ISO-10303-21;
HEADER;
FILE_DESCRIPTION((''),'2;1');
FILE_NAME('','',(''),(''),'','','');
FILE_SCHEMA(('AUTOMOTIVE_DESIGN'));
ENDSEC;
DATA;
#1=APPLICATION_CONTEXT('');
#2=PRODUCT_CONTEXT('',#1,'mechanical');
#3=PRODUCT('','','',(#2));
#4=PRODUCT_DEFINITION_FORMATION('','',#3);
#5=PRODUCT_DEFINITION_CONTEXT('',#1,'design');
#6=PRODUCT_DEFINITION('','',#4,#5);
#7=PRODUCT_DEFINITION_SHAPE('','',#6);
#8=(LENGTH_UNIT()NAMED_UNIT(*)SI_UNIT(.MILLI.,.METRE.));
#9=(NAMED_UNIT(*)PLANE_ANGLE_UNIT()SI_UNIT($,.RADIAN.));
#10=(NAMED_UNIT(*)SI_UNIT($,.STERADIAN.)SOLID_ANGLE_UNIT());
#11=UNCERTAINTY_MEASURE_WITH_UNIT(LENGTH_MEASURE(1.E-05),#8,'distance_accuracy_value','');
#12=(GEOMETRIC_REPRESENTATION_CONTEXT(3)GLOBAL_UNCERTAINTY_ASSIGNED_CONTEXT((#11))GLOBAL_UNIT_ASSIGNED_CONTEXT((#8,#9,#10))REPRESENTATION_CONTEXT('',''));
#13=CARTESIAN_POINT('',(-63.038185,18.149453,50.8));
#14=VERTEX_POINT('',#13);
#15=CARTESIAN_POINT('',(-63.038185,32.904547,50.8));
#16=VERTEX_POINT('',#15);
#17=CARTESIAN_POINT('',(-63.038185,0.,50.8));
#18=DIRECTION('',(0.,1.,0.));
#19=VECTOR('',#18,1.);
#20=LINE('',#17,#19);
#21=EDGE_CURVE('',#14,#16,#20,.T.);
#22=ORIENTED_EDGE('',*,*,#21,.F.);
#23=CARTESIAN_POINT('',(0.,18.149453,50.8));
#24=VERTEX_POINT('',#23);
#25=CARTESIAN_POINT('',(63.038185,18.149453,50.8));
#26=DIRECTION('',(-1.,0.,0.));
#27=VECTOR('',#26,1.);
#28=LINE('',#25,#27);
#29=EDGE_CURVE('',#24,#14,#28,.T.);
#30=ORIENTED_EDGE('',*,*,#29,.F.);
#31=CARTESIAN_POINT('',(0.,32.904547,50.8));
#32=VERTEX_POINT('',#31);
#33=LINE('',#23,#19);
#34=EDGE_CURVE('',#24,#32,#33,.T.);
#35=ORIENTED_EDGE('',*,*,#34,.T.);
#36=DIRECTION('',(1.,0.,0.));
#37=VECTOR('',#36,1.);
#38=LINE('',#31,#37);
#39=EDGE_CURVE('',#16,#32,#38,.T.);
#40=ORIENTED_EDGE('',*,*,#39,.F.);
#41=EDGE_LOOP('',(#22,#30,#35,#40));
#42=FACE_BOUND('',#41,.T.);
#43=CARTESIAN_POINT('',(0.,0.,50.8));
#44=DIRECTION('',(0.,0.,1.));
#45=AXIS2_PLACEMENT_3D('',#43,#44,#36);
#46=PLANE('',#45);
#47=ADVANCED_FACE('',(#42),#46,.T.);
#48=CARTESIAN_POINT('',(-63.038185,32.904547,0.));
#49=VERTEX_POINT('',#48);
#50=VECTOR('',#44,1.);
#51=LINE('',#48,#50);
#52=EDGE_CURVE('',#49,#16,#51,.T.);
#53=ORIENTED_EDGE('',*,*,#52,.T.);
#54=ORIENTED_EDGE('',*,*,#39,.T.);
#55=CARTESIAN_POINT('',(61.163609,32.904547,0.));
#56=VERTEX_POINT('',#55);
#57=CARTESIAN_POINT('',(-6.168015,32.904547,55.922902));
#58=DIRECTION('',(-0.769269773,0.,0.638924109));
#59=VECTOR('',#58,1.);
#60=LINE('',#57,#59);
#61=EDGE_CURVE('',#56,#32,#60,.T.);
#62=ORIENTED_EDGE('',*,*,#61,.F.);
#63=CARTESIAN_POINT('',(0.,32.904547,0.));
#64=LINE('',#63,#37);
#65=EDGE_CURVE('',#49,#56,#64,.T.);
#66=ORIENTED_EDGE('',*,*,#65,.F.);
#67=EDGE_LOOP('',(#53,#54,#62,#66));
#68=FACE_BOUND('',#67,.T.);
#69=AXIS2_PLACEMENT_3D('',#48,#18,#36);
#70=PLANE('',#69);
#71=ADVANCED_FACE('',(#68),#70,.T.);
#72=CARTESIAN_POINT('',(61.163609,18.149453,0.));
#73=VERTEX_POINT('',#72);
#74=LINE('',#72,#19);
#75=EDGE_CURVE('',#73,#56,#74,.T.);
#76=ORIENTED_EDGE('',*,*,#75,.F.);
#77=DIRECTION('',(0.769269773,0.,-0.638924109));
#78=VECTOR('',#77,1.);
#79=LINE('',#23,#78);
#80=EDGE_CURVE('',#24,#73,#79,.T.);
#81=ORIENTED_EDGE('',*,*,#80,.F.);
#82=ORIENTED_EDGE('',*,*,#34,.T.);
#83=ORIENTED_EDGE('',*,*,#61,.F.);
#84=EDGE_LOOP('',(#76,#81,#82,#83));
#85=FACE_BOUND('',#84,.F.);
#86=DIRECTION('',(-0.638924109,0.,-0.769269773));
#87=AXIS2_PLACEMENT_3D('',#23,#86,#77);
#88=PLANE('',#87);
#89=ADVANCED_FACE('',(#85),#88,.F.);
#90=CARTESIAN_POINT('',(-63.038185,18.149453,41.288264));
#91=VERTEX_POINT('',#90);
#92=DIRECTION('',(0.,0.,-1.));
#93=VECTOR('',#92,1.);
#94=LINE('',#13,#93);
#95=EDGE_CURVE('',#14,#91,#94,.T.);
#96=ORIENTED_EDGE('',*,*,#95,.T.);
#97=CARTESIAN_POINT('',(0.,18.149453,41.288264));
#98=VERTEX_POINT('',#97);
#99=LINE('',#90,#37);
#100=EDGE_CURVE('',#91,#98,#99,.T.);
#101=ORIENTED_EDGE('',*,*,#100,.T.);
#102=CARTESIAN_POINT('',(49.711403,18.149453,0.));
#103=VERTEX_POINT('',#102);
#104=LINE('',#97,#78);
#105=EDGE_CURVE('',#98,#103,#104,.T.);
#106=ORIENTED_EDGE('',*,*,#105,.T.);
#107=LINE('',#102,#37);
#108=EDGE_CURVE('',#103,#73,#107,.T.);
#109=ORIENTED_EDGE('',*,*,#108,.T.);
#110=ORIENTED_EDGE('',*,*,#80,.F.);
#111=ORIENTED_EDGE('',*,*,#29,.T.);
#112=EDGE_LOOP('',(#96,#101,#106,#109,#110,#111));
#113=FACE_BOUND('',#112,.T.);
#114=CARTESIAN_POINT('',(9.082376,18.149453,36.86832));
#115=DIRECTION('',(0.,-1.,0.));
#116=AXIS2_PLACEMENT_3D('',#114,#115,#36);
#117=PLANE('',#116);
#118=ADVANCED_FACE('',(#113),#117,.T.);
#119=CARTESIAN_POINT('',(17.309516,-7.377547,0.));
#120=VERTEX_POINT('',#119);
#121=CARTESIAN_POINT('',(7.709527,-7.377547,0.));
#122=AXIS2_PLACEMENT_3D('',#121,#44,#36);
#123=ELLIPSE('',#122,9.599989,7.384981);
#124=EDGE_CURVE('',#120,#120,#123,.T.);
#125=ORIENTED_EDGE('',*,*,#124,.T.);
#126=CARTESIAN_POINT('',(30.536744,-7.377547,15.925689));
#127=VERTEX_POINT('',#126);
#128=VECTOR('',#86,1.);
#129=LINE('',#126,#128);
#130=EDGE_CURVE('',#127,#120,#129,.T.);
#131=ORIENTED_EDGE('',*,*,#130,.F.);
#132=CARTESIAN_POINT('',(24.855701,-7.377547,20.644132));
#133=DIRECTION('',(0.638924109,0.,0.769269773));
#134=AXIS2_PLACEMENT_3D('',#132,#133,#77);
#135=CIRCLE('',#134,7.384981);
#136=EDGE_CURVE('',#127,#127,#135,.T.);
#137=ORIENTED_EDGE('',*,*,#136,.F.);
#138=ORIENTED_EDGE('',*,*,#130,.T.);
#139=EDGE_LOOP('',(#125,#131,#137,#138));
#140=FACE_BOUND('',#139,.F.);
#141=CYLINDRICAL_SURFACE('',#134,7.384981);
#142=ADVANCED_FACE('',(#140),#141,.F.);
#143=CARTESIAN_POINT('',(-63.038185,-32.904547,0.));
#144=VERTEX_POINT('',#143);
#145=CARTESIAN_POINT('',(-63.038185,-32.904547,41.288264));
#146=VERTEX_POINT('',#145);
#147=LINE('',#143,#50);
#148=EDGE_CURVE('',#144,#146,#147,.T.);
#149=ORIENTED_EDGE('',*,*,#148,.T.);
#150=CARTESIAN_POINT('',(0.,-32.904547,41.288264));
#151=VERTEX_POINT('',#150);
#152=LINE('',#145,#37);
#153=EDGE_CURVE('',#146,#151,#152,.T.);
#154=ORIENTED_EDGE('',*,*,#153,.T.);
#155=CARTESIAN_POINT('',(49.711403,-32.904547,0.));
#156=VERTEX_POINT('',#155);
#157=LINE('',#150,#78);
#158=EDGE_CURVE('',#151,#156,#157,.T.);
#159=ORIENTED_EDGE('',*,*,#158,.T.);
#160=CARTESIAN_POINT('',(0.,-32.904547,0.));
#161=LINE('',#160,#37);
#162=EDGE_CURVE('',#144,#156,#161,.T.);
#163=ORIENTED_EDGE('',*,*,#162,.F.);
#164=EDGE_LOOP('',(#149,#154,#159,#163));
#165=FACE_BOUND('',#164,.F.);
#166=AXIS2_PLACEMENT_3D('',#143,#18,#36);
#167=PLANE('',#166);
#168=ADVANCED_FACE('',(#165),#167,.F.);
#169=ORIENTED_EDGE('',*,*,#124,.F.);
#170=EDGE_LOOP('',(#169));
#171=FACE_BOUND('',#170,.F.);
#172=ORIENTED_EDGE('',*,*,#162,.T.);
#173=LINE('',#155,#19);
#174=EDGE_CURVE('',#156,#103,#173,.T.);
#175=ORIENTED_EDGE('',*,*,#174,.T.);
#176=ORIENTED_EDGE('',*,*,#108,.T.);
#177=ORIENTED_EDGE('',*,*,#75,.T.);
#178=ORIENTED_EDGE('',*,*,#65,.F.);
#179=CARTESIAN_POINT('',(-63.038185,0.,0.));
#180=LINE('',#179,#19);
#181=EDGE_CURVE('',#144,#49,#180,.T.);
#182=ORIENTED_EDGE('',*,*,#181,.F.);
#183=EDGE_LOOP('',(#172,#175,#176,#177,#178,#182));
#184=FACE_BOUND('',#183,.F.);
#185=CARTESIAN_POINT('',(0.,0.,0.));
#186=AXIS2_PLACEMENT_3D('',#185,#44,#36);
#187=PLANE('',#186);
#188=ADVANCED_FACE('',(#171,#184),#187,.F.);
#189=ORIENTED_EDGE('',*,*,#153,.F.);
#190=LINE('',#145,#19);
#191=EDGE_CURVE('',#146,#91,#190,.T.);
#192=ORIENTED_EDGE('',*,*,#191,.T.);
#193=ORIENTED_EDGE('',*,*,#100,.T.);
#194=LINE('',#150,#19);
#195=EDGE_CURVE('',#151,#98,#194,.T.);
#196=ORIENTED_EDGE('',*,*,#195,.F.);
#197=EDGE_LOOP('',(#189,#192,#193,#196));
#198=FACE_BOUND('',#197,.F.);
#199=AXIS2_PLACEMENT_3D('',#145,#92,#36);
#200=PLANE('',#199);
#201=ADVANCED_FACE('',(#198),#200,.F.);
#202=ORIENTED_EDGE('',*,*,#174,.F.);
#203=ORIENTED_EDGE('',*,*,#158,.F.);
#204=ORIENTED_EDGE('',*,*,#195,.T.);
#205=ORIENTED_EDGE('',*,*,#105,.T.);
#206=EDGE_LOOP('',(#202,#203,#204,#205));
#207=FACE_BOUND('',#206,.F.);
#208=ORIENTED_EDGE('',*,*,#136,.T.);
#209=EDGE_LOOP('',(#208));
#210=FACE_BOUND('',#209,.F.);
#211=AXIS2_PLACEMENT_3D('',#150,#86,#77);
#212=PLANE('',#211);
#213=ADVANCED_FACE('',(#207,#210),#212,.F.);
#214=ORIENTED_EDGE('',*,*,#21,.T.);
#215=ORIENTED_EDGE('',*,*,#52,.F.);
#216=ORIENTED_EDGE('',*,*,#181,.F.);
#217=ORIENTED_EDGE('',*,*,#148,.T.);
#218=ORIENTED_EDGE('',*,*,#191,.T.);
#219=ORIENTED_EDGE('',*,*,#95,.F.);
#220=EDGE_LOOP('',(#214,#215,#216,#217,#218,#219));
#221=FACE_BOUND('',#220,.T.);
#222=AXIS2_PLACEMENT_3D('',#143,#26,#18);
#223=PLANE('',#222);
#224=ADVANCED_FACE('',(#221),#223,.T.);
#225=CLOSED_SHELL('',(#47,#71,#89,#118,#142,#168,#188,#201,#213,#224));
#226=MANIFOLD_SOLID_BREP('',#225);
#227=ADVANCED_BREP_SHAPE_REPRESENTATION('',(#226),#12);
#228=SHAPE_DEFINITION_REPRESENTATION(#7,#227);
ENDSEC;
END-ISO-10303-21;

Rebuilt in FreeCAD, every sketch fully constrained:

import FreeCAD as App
import Part
import Sketcher
from FreeCAD import Vector
Q = App.Units.Quantity


def add_polygon(sketch, points):
    """Adds a closed chain of lines whose ends are joined by coincident constraints."""
    first, n = sketch.GeometryCount, len(points)
    for a, b in zip(points, points[1:] + points[:1]):
        sketch.addGeometry(Part.LineSegment(App.Vector(*a, 0), App.Vector(*b, 0)), False)
    for i in range(n):
        sketch.addConstraint(Sketcher.Constraint("Coincident", first + i, 2, first + (i + 1) % n, 1))

doc = App.newDocument("Part")
body = doc.addObject("PartDesign::Body", "Body")

sketch1 = body.newObject("Sketcher::SketchObject", "Sketch")
sketch1.AttachmentSupport = (doc.getObject("XY_Plane"), [""])
sketch1.MapMode = "FlatFace"
add_polygon(sketch1, [(-63, 33), (-63, -33), (63, -33), (63, 33)])
sketch1.addConstraint([
    Sketcher.Constraint("Vertical", 0),
    Sketcher.Constraint("Horizontal", 1),
    Sketcher.Constraint("Vertical", 2),
    Sketcher.Constraint("Horizontal", 3),
    Sketcher.Constraint("Symmetric", 0, 2, 2, 2, -1, 1),
    Sketcher.Constraint("DistanceX", 1, 1, 1, 2, Q("126.07637 mm")),
    Sketcher.Constraint("DistanceY", 0, 2, 0, 1, Q("65.809093 mm")),
])
pad1 = body.newObject("PartDesign::Pad", "Pad")
pad1.Profile = sketch1
pad1.Length = Q("2 in")

sketch2 = body.newObject("Sketcher::SketchObject", "Sketch001")
sketch2.AttachmentSupport = (doc.getObject("XZ_Plane"), [""])
sketch2.MapMode = "FlatFace"
sketch2.AttachmentOffset = App.Placement(Vector(0, 0, 32.904547), App.Rotation())
add_polygon(sketch2, [(63, 51), (-63, 51), (-63, 41), (0, 41), (50, 0), (63, 0)])
sketch2.addConstraint([
    Sketcher.Constraint("Horizontal", 0),
    Sketcher.Constraint("Vertical", 1),
    Sketcher.Constraint("Horizontal", 2),
    Sketcher.Constraint("Horizontal", 4),
    Sketcher.Constraint("Vertical", 5),
    Sketcher.Constraint("PointOnObject", 2, 2, -2),
    Sketcher.Constraint("PointOnObject", 3, 2, -1),
    Sketcher.Constraint("DistanceY", 5, 1, 5, 2, Q("2 in")),
    Sketcher.Constraint("DistanceX", 0, 2, 0, 1, Q("126.07637 mm")),
    Sketcher.Constraint("DistanceX", 2, 1, 2, 2, Q("63.038185 mm")),
    Sketcher.Constraint("DistanceX", 4, 1, 4, 2, Q("13.326783 mm")),
    Sketcher.Constraint("DistanceY", 1, 2, 1, 1, Q("9.511736 mm")),
])
pocket1 = body.newObject("PartDesign::Pocket", "Pocket")
pocket1.Profile = sketch2
pocket1.Length = Q("2.01 in")

sketch3 = body.newObject("Sketcher::SketchObject", "Sketch002")
sketch3.AttachmentSupport = (doc.getObject("XZ_Plane"), [""])
sketch3.MapMode = "FlatFace"
sketch3.AttachmentOffset = App.Placement(Vector(0, 0, -18.149453), App.Rotation())
add_polygon(sketch3, [(63, 50.8), (0, 50.8), (61.2, 0), (63, 0)])
sketch3.addConstraint([
    Sketcher.Constraint("Horizontal", 0),
    Sketcher.Constraint("Horizontal", 2),
    Sketcher.Constraint("Vertical", 3),
    Sketcher.Constraint("PointOnObject", 0, 2, -2),
    Sketcher.Constraint("PointOnObject", 1, 2, -1),
    Sketcher.Constraint("DistanceY", 3, 1, 3, 2, Q("2 in")),
    Sketcher.Constraint("Distance", 1, Q("79.50866 mm")),
    Sketcher.Constraint("DistanceX", 0, 2, 0, 1, Q("63.038185 mm")),
])
pocket2 = body.newObject("PartDesign::Pocket", "Pocket001")
pocket2.Profile = sketch3
pocket2.Length = Q("1 in")

sketch4 = body.newObject("Sketcher::SketchObject", "Sketch003")
sketch4.Placement = App.Placement(Vector(20.293388, 0, 24.433403), App.Rotation(Vector(0.769269773, 0, -0.638924109), Vector(0, 1.000000001, 0), Vector(0.638924109, 0, 0.769269773), "ZXY"))
sketch4.addGeometry(Part.Circle(Vector(6, -7, 0), Vector(0, 0, 1), 7), False)
sketch4.addConstraint([
    Sketcher.Constraint("Diameter", 0, Q("14.769963 mm")),
    Sketcher.Constraint("DistanceX", -1, 1, 0, 3, Q("5.930706 mm")),
    Sketcher.Constraint("DistanceY", 0, 3, -1, 1, Q("7.377547 mm")),
])
pocket3 = body.newObject("PartDesign::Pocket", "Pocket002")
pocket3.Profile = sketch4
pocket3.Length = Q("1.86 in")

doc.recompute()
